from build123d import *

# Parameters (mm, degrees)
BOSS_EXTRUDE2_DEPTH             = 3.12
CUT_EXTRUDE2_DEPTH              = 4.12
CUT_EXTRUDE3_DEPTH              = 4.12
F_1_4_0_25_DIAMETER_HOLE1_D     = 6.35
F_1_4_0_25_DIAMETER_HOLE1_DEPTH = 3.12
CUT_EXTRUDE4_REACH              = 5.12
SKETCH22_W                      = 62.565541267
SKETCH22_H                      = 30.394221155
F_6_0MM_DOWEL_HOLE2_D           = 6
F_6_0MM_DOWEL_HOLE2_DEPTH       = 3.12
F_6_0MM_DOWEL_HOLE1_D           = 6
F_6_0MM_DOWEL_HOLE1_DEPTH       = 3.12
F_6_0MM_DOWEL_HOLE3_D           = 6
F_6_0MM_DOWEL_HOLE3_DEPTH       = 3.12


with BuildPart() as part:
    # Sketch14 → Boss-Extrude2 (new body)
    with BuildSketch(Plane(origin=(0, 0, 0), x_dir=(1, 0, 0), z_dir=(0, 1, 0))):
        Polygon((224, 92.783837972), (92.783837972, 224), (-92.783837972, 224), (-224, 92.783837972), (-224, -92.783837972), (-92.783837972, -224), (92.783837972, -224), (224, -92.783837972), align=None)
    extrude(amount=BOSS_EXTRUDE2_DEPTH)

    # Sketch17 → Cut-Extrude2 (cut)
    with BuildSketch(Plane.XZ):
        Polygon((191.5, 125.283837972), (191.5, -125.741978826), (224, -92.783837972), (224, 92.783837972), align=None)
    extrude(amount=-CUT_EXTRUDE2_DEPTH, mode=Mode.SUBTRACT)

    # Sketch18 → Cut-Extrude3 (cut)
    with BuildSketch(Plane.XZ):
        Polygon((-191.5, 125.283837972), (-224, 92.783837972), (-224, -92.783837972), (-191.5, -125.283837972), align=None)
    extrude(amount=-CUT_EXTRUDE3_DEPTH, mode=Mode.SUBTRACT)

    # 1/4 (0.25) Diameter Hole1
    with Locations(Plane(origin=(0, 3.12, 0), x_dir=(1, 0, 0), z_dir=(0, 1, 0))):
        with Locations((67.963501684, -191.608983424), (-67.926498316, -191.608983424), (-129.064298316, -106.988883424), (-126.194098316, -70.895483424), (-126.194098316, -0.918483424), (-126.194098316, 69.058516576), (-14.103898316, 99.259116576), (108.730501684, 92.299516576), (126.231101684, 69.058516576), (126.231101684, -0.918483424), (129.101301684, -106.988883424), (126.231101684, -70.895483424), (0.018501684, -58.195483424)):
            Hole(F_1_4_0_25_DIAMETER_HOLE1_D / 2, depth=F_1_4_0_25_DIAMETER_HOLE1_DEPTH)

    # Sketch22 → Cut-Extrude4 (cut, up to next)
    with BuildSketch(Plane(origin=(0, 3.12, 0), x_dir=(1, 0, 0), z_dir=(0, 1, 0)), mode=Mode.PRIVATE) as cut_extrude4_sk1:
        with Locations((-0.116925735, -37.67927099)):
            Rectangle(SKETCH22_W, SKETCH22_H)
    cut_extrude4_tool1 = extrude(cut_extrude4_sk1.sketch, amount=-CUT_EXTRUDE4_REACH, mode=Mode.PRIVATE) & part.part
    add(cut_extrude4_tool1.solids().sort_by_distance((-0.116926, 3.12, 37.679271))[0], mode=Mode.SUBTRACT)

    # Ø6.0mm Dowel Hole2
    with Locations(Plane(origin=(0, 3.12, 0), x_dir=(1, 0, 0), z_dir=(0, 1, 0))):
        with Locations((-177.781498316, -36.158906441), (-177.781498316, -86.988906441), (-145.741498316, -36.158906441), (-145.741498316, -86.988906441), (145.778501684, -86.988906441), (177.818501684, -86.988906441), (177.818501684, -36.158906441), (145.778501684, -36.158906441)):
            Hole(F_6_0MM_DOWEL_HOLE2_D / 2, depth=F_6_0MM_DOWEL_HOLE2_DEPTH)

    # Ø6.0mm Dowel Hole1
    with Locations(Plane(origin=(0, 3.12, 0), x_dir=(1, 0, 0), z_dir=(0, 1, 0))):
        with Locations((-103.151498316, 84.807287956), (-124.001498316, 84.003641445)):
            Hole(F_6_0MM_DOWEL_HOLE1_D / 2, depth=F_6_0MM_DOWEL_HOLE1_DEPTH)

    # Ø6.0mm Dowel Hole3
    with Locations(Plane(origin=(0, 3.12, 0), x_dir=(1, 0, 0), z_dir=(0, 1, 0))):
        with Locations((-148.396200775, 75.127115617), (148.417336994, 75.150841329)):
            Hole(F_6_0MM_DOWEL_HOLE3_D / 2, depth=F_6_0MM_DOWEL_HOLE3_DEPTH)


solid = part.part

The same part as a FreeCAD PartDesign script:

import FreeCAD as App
import Part
import Sketcher

V = App.Vector
Q = App.Units.Quantity


def add_polygon(sketch, points):
    """Adds a closed chain of lines whose ends are joined by coincident constraints."""
    first, n = sketch.GeometryCount, len(points)
    for a, b in zip(points, points[1:] + points[:1]):
        sketch.addGeometry(Part.LineSegment(App.Vector(*a, 0), App.Vector(*b, 0)), False)
    for i in range(n):
        sketch.addConstraint(Sketcher.Constraint("Coincident", first + i, 2, first + (i + 1) % n, 1))

doc = App.newDocument("Part")
body = doc.addObject("PartDesign::Body", "Body")

# Sketch on XZ plane
sketch1 = body.newObject("Sketcher::SketchObject", "Sketch")
sketch1.AttachmentSupport = (doc.getObject("XZ_Plane"), [""])
sketch1.MapMode = "FlatFace"
add_polygon(sketch1, [(224, -92.783838), (92.783838, -224), (-92.783838, -224), (-224, -92.783838), (-224, 92.783838), (-92.783838, 224), (92.783838, 224), (224, 92.783838)])  # lines 0-7
sketch1.addConstraint([
    Sketcher.Constraint("Horizontal", 1),
    Sketcher.Constraint("Vertical", 3),
    Sketcher.Constraint("Horizontal", 5),
    Sketcher.Constraint("Vertical", 7),
    Sketcher.Constraint("Symmetric", 0, 2, 4, 2, -1, 1),
    Sketcher.Constraint("Symmetric", 2, 2, 6, 2, -1, 1),
    Sketcher.Constraint("Perpendicular", 0, 2),
    Sketcher.Constraint("Perpendicular", 2, 4),
    Sketcher.Constraint("Perpendicular", 4, 6),
    Sketcher.Constraint("Horizontal", 3, 2, 6, 2),
    Sketcher.Constraint("Vertical", 1, 2, 4, 2),
    Sketcher.Constraint("Equal", 5, 3),
    Sketcher.Constraint("DistanceY", 0, 2, -1, 1, Q("224 mm")),
    Sketcher.Constraint("DistanceX", 1, 2, 1, 1, Q("185.567676 mm")),
])
pad1 = body.newObject("PartDesign::Pad", "Pad")
pad1.Profile = sketch1
pad1.Length = 3.12
pad1.Reversed = True

# Sketch on XZ plane
sketch2 = body.newObject("Sketcher::SketchObject", "Sketch001")
sketch2.AttachmentSupport = (doc.getObject("XZ_Plane"), [""])
sketch2.MapMode = "FlatFace"
add_polygon(sketch2, [(191.5, 125.283838), (191.5, -125.741979), (224, -92.783838), (224, 92.783838)])  # lines 0-3
sketch2.addConstraint([
    Sketcher.Constraint("Vertical", 0),
    Sketcher.Constraint("Vertical", 2),
    Sketcher.Constraint("Angle", 3, Q("135 deg")),
    Sketcher.Constraint("DistanceX", -1, 1, 1, 2, Q("224 mm")),
    Sketcher.Constraint("DistanceX", -1, 1, 0, 2, Q("191.5 mm")),
    Sketcher.Constraint("Distance", 1, Q("46.287029 mm")),
    Sketcher.Constraint("DistanceY", 0, 2, 0, 1, Q("251.025817 mm")),
    Sketcher.Constraint("DistanceY", 0, 2, -1, 1, Q("125.741979 mm")),
])
pocket1 = body.newObject("PartDesign::Pocket", "Pocket")
pocket1.Profile = sketch2
pocket1.Length = 4.12

# Sketch on XZ plane
sketch3 = body.newObject("Sketcher::SketchObject", "Sketch002")
sketch3.AttachmentSupport = (doc.getObject("XZ_Plane"), [""])
sketch3.MapMode = "FlatFace"
add_polygon(sketch3, [(-191.5, 125.283838), (-224, 92.783838), (-224, -92.783838), (-191.5, -125.283838)])  # lines 0-3
sketch3.addConstraint([
    Sketcher.Constraint("Vertical", 1),
    Sketcher.Constraint("Vertical", 3),
    Sketcher.Constraint("Perpendicular", 0, 2),
    Sketcher.Constraint("Equal", 0, 2),
    Sketcher.Constraint("DistanceX", 0, 2, -1, 1, Q("224 mm")),
    Sketcher.Constraint("DistanceX", 2, 2, -1, 1, Q("191.5 mm")),
    Sketcher.Constraint("DistanceY", 1, 2, 1, 1, Q("185.567676 mm")),
    Sketcher.Constraint("DistanceY", -1, 1, 0, 2, Q("92.783838 mm")),
])
pocket2 = body.newObject("PartDesign::Pocket", "Pocket001")
pocket2.Profile = sketch3
pocket2.Length = 4.12

# Sketch on XZ plane
sketch4 = body.newObject("Sketcher::SketchObject", "Sketch003")
sketch4.AttachmentSupport = (doc.getObject("XZ_Plane"), [""])
sketch4.MapMode = "FlatFace"
sketch4.AttachmentOffset = App.Placement(V(0, 0, -3.12), App.Rotation())
sketch4.addGeometry([
    Part.Circle(V(67.963502, 191.608983, 0), V(0, 0, 1), 3.175),  # 0
    Part.Circle(V(-67.926498, 191.608983, 0), V(0, 0, 1), 3.175),  # 1
    Part.Circle(V(-129.064298, 106.988883, 0), V(0, 0, 1), 3.175),  # 2
    Part.Circle(V(-126.194098, 70.895483, 0), V(0, 0, 1), 3.175),  # 3
    Part.Circle(V(-126.194098, 0.918483, 0), V(0, 0, 1), 3.175),  # 4
    Part.Circle(V(-126.194098, -69.058517, 0), V(0, 0, 1), 3.175),  # 5
    Part.Circle(V(-14.103898, -99.259117, 0), V(0, 0, 1), 3.175),  # 6
    Part.Circle(V(108.730502, -92.299517, 0), V(0, 0, 1), 3.175),  # 7
    Part.Circle(V(126.231102, -69.058517, 0), V(0, 0, 1), 3.175),  # 8
    Part.Circle(V(126.231102, 0.918483, 0), V(0, 0, 1), 3.175),  # 9
    Part.Circle(V(129.101302, 106.988883, 0), V(0, 0, 1), 3.175),  # 10
    Part.Circle(V(126.231102, 70.895483, 0), V(0, 0, 1), 3.175),  # 11
    Part.Circle(V(0.018502, 58.195483, 0), V(0, 0, 1), 3.175),  # 12
], False)
sketch4.addConstraint([
    Sketcher.Constraint("Equal", 0, 1),
    Sketcher.Constraint("Equal", 1, 2),
    Sketcher.Constraint("Equal", 2, 3),
    Sketcher.Constraint("Equal", 3, 4),
    Sketcher.Constraint("Equal", 4, 5),
    Sketcher.Constraint("Equal", 5, 6),
    Sketcher.Constraint("Equal", 6, 7),
    Sketcher.Constraint("Equal", 7, 8),
    Sketcher.Constraint("Equal", 8, 9),
    Sketcher.Constraint("Equal", 9, 10),
    Sketcher.Constraint("Equal", 10, 11),
    Sketcher.Constraint("Equal", 11, 12),
    Sketcher.Constraint("Horizontal", 0, 3, 1, 3),
    Sketcher.Constraint("Horizontal", 5, 3, 8, 3),
    Sketcher.Constraint("Horizontal", 4, 3, 9, 3),
    Sketcher.Constraint("Horizontal", 2, 3, 10, 3),
    Sketcher.Constraint("Horizontal", 3, 3, 11, 3),
    Sketcher.Constraint("Vertical", 3, 3, 4, 3),
    Sketcher.Constraint("Vertical", 4, 3, 5, 3),
    Sketcher.Constraint("Vertical", 8, 3, 9, 3),
    Sketcher.Constraint("Vertical", 9, 3, 11, 3),
    Sketcher.Constraint("Diameter", 0, Q("6.35 mm")),
    Sketcher.Constraint("DistanceY", 12, 3, 3, 3, Q("12.7 mm")),
    Sketcher.Constraint("DistanceX", 1, 3, 0, 3, Q("135.89 mm")),
    Sketcher.Constraint("DistanceY", 4, 3, 3, 3, Q("69.977 mm")),
    Sketcher.Constraint("DistanceY", 5, 3, 4, 3, Q("69.977 mm")),
    Sketcher.Constraint("DistanceY", 6, 3, 2, 3, Q("206.248 mm")),
    Sketcher.Constraint("DistanceY", 7, 3, 5, 3, Q("23.241 mm")),
    Sketcher.Constraint("DistanceX", 0, 3, 7, 3, Q("40.767 mm")),
    Sketcher.Constraint("DistanceX", 6, 3, 8, 3, Q("140.335 mm")),
    Sketcher.Constraint("DistanceX", -1, 1, 0, 3, Q("67.963502 mm")),
    Sketcher.Constraint("DistanceX", 2, 3, -1, 1, Q("129.064298 mm")),
    Sketcher.Constraint("DistanceX", 3, 3, -1, 1, Q("126.194098 mm")),
    Sketcher.Constraint("DistanceX", 6, 3, -1, 1, Q("14.103898 mm")),
    Sketcher.Constraint("DistanceX", -1, 1, 10, 3, Q("129.101302 mm")),
    Sketcher.Constraint("DistanceX", -1, 1, 12, 3, Q("0.018502 mm")),
    Sketcher.Constraint("DistanceY", 2, 3, 1, 3, Q("84.6201 mm")),
    Sketcher.Constraint("DistanceY", 3, 3, 2, 3, Q("36.0934 mm")),
    Sketcher.Constraint("DistanceY", -1, 1, 0, 3, Q("191.608983 mm")),
])
doc.recompute()
hole = body.newObject("PartDesign::Hole", "Hole")
hole.Profile = sketch4
hole.ThreadType = "None"
hole.Diameter = 6.35
hole.DepthType = "Dimension"
hole.Depth = 3.12
hole.DrillPoint = "Flat"
hole.Reversed = True

# Sketch on XZ plane
sketch5 = body.newObject("Sketcher::SketchObject", "Sketch004")
sketch5.AttachmentSupport = (doc.getObject("XZ_Plane"), [""])
sketch5.MapMode = "FlatFace"
sketch5.AttachmentOffset = App.Placement(V(0, 0, -3.12), App.Rotation())
add_polygon(sketch5, [(-31.399696, 22.48216), (-31.399696, 52.876382), (31.165845, 52.876382), (31.165845, 22.48216)])  # lines 0-3
sketch5.addConstraint([
    Sketcher.Constraint("Vertical", 0),
    Sketcher.Constraint("Horizontal", 1),
    Sketcher.Constraint("Vertical", 2),
    Sketcher.Constraint("Horizontal", 3),
    Sketcher.Constraint("DistanceX", 1, 1, 1, 2, Q("62.565541 mm")),
    Sketcher.Constraint("DistanceY", 0, 1, 0, 2, Q("30.394221 mm")),
    Sketcher.Constraint("DistanceY", -1, 1, 0, 2, Q("52.876382 mm")),
    Sketcher.Constraint("DistanceX", 0, 2, -1, 1, Q("31.399696 mm")),
])
pocket3 = body.newObject("PartDesign::Pocket", "Pocket002")
pocket3.Profile = sketch5
pocket3.Type = "UpToFirst"
pocket3.Reversed = True

# Sketch on XZ plane
sketch6 = body.newObject("Sketcher::SketchObject", "Sketch005")
sketch6.AttachmentSupport = (doc.getObject("XZ_Plane"), [""])
sketch6.MapMode = "FlatFace"
sketch6.AttachmentOffset = App.Placement(V(0, 0, -3.12), App.Rotation())
sketch6.addGeometry([
    Part.Circle(V(-177.781498, 36.158906, 0), V(0, 0, 1), 3),  # 0
    Part.Circle(V(-177.781498, 86.988906, 0), V(0, 0, 1), 3),  # 1
    Part.Circle(V(-145.741498, 36.158906, 0), V(0, 0, 1), 3),  # 2
    Part.Circle(V(-145.741498, 86.988906, 0), V(0, 0, 1), 3),  # 3
    Part.Circle(V(145.778502, 86.988906, 0), V(0, 0, 1), 3),  # 4
    Part.Circle(V(177.818502, 86.988906, 0), V(0, 0, 1), 3),  # 5
    Part.Circle(V(177.818502, 36.158906, 0), V(0, 0, 1), 3),  # 6
    Part.Circle(V(145.778502, 36.158906, 0), V(0, 0, 1), 3),  # 7
], False)
sketch6.addConstraint([
    Sketcher.Constraint("Equal", 0, 1),
    Sketcher.Constraint("Equal", 1, 2),
    Sketcher.Constraint("Equal", 2, 3),
    Sketcher.Constraint("Equal", 3, 4),
    Sketcher.Constraint("Equal", 4, 5),
    Sketcher.Constraint("Equal", 5, 6),
    Sketcher.Constraint("Equal", 6, 7),
    Sketcher.Constraint("Horizontal", 0, 3, 2, 3),
    Sketcher.Constraint("Horizontal", 1, 3, 3, 3),
    Sketcher.Constraint("Horizontal", 3, 3, 4, 3),
    Sketcher.Constraint("Horizontal", 4, 3, 5, 3),
    Sketcher.Constraint("Horizontal", 2, 3, 6, 3),
    Sketcher.Constraint("Horizontal", 6, 3, 7, 3),
    Sketcher.Constraint("Vertical", 0, 3, 1, 3),
    Sketcher.Constraint("Vertical", 2, 3, 3, 3),
    Sketcher.Constraint("Vertical", 5, 3, 6, 3),
    Sketcher.Constraint("Vertical", 4, 3, 7, 3),
    Sketcher.Constraint("Diameter", 0, Q("6 mm")),
    Sketcher.Constraint("DistanceX", 1, 3, 5, 3, Q("355.6 mm")),
    Sketcher.Constraint("DistanceY", 0, 3, 1, 3, Q("50.83 mm")),
    Sketcher.Constraint("DistanceX", 0, 3, 2, 3, Q("32.04 mm")),
    Sketcher.Constraint("DistanceX", 3, 3, 4, 3, Q("291.52 mm")),
    Sketcher.Constraint("DistanceX", 0, 3, -1, 1, Q("177.781498 mm")),
    Sketcher.Constraint("DistanceY", -1, 1, 0, 3, Q("36.158906 mm")),
])
doc.recompute()
hole2 = body.newObject("PartDesign::Hole", "Hole001")
hole2.Profile = sketch6
hole2.ThreadType = "None"
hole2.Diameter = 6
hole2.DepthType = "Dimension"
hole2.Depth = 3.12
hole2.DrillPoint = "Flat"
hole2.Reversed = True

# Sketch on XZ plane
sketch7 = body.newObject("Sketcher::SketchObject", "Sketch006")
sketch7.AttachmentSupport = (doc.getObject("XZ_Plane"), [""])
sketch7.MapMode = "FlatFace"
sketch7.AttachmentOffset = App.Placement(V(0, 0, -3.12), App.Rotation())
sketch7.addGeometry([
    Part.Circle(V(-103.151498, -84.807288, 0), V(0, 0, 1), 3),
    Part.Circle(V(-124.001498, -84.003641, 0), V(0, 0, 1), 3),
], False)
sketch7.addConstraint([
    Sketcher.Constraint("Equal", 0, 1),
    Sketcher.Constraint("Diameter", 0, Q("6 mm")),
    Sketcher.Constraint("DistanceX", 1, 3, 0, 3, Q("20.85 mm")),
    Sketcher.Constraint("DistanceX", 0, 3, -1, 1, Q("103.151498 mm")),
    Sketcher.Constraint("DistanceY", 1, 3, -1, 1, Q("84.003641 mm")),
    Sketcher.Constraint("DistanceY", 0, 3, -1, 1, Q("84.807288 mm")),
])
doc.recompute()
hole3 = body.newObject("PartDesign::Hole", "Hole002")
hole3.Profile = sketch7
hole3.ThreadType = "None"
hole3.Diameter = 6
hole3.DepthType = "Dimension"
hole3.Depth = 3.12
hole3.DrillPoint = "Flat"
hole3.Reversed = True

# Sketch on XZ plane
sketch8 = body.newObject("Sketcher::SketchObject", "Sketch007")
sketch8.AttachmentSupport = (doc.getObject("XZ_Plane"), [""])
sketch8.MapMode = "FlatFace"
sketch8.AttachmentOffset = App.Placement(V(0, 0, -3.12), App.Rotation())
sketch8.addGeometry([
    Part.Circle(V(-148.396201, -75.127116, 0), V(0, 0, 1), 3),
    Part.Circle(V(148.417337, -75.150841, 0), V(0, 0, 1), 3),
], False)
sketch8.addConstraint([
    Sketcher.Constraint("Equal", 0, 1),
    Sketcher.Constraint("Diameter", 0, Q("6 mm")),
    Sketcher.Constraint("DistanceX", 0, 3, -1, 1, Q("148.396201 mm")),
    Sketcher.Constraint("DistanceY", 1, 3, -1, 1, Q("75.150841 mm")),
    Sketcher.Constraint("DistanceY", 0, 3, -1, 1, Q("75.127116 mm")),
    Sketcher.Constraint("DistanceX", -1, 1, 1, 3, Q("148.417337 mm")),
])
doc.recompute()
hole4 = body.newObject("PartDesign::Hole", "Hole003")
hole4.Profile = sketch8
hole4.ThreadType = "None"
hole4.Diameter = 6
hole4.DepthType = "Dimension"
hole4.Depth = 3.12
hole4.DrillPoint = "Flat"
hole4.Reversed = True

doc.recompute()
